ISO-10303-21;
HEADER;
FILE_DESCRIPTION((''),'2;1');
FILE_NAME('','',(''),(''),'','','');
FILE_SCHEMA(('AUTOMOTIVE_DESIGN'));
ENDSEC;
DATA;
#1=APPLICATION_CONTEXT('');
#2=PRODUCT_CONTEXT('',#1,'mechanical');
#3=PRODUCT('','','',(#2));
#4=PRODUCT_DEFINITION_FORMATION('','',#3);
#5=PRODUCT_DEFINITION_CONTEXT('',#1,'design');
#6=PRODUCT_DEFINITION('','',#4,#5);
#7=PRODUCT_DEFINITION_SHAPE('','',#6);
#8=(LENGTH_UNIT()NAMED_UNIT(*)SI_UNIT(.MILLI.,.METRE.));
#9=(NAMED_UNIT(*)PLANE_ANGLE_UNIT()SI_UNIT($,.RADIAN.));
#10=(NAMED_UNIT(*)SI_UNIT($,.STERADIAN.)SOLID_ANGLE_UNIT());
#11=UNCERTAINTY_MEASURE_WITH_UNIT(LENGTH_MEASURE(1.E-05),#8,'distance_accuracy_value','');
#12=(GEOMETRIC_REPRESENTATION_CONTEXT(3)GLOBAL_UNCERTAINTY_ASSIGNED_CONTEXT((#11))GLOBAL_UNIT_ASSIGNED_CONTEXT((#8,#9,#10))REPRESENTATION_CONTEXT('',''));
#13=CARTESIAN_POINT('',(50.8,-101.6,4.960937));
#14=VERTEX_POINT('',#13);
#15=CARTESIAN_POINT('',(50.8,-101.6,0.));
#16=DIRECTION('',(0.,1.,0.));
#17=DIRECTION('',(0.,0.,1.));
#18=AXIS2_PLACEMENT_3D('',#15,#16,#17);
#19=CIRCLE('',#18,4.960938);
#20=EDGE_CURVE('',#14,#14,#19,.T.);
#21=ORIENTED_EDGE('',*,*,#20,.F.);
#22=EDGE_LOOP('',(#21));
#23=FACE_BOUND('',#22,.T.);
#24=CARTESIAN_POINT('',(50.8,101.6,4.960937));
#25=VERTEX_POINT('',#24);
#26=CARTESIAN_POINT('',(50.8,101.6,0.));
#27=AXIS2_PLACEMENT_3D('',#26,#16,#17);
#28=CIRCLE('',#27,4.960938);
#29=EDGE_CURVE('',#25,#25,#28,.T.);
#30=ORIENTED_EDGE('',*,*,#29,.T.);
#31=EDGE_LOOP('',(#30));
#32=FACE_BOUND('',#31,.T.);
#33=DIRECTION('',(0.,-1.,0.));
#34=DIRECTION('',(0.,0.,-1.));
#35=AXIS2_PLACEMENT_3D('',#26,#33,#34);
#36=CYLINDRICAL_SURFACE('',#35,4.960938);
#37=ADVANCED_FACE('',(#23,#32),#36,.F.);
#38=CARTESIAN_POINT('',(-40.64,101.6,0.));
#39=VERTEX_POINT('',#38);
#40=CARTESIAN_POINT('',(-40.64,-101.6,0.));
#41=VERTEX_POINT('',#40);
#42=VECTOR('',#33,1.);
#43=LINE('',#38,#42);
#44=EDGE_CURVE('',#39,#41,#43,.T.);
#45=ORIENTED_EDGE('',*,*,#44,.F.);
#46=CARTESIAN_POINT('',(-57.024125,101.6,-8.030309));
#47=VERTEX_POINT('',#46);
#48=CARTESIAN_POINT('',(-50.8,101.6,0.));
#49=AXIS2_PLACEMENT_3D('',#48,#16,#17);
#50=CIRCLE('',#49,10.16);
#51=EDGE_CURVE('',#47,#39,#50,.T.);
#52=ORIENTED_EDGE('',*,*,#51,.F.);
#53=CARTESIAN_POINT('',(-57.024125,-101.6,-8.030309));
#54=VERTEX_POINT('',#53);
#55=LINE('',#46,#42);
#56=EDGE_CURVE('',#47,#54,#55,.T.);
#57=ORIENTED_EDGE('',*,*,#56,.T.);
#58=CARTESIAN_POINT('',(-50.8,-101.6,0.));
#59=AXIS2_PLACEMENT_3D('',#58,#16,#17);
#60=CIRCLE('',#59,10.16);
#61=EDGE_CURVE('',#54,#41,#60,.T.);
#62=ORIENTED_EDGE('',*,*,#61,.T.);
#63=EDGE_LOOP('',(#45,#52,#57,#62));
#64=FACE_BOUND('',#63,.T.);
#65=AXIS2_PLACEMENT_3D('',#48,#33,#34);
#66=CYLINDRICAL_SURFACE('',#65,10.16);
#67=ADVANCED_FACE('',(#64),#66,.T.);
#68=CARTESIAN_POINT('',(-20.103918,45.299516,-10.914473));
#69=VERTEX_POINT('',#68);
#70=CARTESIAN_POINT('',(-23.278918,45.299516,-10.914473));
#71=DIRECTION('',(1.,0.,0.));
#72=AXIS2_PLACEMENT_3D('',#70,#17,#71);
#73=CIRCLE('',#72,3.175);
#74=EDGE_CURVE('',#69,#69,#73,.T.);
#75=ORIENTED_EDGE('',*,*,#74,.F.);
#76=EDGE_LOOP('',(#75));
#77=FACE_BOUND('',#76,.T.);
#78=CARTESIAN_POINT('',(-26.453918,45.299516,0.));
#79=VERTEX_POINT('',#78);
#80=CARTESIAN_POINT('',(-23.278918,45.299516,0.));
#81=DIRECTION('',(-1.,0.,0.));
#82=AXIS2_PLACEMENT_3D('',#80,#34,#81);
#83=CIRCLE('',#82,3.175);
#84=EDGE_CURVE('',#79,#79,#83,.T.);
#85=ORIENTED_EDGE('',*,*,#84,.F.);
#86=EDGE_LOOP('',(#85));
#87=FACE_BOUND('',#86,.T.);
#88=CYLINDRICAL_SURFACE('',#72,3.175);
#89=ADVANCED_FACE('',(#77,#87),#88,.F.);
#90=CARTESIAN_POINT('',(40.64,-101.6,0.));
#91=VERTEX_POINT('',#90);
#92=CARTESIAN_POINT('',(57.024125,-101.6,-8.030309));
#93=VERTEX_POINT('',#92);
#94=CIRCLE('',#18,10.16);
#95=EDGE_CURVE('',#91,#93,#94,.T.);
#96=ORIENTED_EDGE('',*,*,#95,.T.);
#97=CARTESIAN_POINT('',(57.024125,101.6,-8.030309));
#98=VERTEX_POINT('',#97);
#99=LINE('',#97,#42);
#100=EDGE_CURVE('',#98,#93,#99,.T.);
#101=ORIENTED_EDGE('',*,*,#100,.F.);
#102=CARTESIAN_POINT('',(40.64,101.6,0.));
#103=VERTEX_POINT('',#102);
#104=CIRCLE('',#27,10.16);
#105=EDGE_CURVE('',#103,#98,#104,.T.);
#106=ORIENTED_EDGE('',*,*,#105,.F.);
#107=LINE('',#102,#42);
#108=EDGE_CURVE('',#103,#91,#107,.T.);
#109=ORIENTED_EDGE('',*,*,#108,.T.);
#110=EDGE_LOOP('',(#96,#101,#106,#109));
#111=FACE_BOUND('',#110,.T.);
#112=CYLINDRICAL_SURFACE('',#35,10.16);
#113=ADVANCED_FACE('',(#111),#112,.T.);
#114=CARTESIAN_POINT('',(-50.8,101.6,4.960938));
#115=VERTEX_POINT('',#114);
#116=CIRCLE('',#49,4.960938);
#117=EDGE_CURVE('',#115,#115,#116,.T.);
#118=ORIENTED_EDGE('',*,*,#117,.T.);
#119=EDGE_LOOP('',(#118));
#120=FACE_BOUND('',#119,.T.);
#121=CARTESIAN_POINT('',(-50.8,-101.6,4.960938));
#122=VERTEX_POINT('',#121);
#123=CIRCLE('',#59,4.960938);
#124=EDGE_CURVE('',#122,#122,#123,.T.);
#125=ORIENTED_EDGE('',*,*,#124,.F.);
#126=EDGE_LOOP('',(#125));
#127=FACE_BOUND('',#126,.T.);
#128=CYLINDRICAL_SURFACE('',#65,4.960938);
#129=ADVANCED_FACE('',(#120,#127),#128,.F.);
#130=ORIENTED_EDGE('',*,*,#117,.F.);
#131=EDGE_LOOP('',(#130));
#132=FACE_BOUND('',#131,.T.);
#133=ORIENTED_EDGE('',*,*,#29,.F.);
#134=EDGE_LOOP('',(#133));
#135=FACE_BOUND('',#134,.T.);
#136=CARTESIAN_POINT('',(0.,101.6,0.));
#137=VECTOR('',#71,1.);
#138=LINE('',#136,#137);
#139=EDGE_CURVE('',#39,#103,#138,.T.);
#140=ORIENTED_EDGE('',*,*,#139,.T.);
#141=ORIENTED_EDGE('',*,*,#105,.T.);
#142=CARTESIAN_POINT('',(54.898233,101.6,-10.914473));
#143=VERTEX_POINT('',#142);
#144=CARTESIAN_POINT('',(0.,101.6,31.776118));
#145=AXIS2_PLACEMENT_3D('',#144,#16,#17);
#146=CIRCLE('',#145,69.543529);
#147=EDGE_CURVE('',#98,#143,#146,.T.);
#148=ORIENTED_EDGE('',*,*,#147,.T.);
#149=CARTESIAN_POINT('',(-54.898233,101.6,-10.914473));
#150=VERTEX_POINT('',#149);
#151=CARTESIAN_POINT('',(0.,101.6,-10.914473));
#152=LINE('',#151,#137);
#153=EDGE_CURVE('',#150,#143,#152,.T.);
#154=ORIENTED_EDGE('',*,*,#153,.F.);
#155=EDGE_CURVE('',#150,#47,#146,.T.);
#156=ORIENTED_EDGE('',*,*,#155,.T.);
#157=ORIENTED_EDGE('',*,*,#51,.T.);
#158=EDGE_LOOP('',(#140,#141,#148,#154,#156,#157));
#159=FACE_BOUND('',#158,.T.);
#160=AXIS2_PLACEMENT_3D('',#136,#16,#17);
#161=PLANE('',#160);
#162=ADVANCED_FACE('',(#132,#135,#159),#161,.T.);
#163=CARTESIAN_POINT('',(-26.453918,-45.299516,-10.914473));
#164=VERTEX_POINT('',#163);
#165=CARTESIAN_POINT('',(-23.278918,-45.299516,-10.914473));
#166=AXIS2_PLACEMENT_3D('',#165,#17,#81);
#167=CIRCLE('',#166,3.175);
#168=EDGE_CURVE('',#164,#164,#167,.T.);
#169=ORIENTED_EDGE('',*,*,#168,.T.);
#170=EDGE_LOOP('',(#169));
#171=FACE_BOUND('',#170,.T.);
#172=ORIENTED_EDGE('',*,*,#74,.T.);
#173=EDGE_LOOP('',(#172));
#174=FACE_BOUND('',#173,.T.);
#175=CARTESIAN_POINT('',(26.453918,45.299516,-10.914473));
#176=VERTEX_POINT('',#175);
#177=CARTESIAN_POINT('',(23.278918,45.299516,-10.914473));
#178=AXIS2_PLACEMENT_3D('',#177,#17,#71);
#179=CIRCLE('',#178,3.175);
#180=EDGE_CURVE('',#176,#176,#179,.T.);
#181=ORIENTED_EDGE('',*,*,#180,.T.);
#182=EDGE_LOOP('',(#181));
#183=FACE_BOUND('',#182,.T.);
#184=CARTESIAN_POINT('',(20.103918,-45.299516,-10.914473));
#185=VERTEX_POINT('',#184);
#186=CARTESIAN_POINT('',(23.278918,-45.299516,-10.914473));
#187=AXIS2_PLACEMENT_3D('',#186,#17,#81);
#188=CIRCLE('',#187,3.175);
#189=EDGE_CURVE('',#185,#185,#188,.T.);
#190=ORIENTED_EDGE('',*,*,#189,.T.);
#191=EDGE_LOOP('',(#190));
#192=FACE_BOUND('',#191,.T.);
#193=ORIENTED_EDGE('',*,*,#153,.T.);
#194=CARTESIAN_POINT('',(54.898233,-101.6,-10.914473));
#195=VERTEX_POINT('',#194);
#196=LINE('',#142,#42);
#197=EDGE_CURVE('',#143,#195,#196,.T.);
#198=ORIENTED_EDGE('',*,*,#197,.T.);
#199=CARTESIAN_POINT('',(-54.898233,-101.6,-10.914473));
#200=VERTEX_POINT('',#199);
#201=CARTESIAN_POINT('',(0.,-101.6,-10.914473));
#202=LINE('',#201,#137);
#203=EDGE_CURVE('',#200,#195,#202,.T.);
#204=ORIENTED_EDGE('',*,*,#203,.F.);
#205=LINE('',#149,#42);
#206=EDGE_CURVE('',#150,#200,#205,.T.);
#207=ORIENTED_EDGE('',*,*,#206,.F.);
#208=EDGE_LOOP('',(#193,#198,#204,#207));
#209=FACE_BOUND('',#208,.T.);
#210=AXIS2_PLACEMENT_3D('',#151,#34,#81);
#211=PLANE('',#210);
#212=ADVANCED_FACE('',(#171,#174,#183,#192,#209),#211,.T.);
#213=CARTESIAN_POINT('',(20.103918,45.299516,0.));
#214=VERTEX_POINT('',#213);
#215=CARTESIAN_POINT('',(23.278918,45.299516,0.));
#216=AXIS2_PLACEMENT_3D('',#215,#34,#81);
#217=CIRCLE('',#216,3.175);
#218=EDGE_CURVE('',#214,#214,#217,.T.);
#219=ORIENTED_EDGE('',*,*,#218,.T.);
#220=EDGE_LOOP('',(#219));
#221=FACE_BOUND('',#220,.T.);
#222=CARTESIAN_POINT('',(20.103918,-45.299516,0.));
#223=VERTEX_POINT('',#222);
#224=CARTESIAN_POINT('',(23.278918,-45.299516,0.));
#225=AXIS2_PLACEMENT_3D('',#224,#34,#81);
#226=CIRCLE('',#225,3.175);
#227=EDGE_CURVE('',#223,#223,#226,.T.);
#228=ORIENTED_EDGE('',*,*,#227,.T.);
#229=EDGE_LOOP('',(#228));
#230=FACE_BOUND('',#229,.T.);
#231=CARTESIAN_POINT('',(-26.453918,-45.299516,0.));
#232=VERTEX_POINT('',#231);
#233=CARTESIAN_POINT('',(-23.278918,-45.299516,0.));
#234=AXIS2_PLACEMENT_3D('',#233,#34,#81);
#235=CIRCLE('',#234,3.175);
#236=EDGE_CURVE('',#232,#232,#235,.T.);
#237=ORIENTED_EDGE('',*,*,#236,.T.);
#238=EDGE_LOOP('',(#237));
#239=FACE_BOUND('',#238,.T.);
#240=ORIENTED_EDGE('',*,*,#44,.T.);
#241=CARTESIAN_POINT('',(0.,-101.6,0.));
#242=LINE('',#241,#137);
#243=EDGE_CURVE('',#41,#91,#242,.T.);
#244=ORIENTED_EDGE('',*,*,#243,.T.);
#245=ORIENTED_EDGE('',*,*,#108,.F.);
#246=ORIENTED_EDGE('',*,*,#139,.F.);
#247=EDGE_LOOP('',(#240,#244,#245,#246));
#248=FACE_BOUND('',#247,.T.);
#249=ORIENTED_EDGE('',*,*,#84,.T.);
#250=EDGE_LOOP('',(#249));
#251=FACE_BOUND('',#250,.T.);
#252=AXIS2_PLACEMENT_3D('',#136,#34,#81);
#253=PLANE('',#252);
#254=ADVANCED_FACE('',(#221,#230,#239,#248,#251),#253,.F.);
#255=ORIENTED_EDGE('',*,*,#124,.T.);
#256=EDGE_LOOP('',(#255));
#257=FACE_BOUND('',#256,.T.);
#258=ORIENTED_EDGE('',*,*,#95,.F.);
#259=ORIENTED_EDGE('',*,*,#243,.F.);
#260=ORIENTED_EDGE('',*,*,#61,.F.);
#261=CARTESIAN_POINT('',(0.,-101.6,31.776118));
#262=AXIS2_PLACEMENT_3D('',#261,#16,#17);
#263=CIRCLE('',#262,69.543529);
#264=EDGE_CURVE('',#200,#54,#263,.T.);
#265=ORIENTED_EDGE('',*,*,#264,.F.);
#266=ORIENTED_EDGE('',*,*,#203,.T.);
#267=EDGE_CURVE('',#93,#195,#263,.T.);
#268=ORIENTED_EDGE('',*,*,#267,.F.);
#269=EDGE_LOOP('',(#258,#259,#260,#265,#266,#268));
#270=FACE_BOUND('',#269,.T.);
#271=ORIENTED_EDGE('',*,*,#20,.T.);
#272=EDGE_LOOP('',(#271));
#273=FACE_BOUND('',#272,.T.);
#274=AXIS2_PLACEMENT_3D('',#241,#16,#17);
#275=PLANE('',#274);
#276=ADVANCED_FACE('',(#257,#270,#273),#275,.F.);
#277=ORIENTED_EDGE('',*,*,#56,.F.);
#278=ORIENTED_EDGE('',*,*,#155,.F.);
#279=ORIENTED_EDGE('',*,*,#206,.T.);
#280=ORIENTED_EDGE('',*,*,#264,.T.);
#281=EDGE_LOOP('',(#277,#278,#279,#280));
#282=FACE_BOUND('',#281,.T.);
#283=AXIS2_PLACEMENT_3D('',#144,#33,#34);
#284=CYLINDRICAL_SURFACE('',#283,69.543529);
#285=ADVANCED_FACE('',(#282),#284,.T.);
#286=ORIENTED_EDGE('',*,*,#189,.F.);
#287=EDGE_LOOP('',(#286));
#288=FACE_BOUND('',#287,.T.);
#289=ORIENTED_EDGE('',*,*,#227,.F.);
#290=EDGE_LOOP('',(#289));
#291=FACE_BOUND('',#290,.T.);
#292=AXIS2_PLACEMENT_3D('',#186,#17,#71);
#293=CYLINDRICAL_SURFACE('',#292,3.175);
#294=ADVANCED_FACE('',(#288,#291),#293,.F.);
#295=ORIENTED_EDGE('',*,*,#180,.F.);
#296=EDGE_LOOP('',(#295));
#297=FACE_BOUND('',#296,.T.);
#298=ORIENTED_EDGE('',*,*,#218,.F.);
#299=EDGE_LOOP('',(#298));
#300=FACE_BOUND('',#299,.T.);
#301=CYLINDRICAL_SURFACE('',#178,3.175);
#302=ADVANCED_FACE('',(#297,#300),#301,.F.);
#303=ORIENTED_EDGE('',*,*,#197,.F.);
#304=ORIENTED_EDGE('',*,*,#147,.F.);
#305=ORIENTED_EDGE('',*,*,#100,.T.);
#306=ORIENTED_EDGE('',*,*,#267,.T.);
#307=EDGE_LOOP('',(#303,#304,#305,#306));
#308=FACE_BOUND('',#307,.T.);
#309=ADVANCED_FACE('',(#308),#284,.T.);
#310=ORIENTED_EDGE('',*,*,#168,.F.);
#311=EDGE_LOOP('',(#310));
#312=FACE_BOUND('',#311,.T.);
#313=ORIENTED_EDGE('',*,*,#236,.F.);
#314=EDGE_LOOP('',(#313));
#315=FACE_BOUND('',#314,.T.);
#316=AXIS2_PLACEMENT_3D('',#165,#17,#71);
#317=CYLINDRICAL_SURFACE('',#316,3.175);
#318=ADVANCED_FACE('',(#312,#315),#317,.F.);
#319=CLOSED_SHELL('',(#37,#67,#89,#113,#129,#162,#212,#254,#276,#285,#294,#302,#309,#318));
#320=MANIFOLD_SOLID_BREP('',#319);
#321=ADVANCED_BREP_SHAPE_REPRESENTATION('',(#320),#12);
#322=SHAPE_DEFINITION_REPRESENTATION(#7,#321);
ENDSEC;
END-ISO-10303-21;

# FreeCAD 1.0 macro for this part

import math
import FreeCAD as App
import Part
import Sketcher
Q = App.Units.Quantity

doc = App.newDocument("Part")
body = doc.addObject("PartDesign::Body", "Body")

# Sketch on XZ plane
sketch1 = doc.addObject("Sketcher::SketchObject", "Sketch")
body.addObject(sketch1)
sketch1.AttachmentSupport = (doc.XZ_Plane, [""])
sketch1.MapMode = "FlatFace"
sketch1.addGeometry([
    Part.ArcOfCircle(Part.Circle(App.Vector(0, 31.8, 0), App.Vector(0, 0, 1), 69.5), math.radians(-145.08), math.radians(-142.13)),  # 0
    Part.ArcOfCircle(Part.Circle(App.Vector(-50.8, 0, 0), App.Vector(0, 0, 1), 10.2), math.radians(0), math.radians(232)),  # 1
    Part.LineSegment(App.Vector(-40.6, 0, 0), App.Vector(40.6, 0, 0)),  # 2
    Part.ArcOfCircle(Part.Circle(App.Vector(50.8, 0, 0), App.Vector(0, 0, 1), 10.2), math.radians(-52), math.radians(180)),  # 3
    Part.ArcOfCircle(Part.Circle(App.Vector(0, 31.8, 0), App.Vector(0, 0, 1), 69.5), math.radians(-37.87), math.radians(-34.92)),  # 4
    Part.LineSegment(App.Vector(54.9, -10.9, 0), App.Vector(-54.9, -10.9, 0)),  # 5
    Part.Circle(App.Vector(-50.8, 0, 0), App.Vector(0, 0, 1), 5),  # 6
    Part.Circle(App.Vector(50.8, 0, 0), App.Vector(0, 0, 1), 5),  # 7
], False)
sketch1.addConstraint([
    Sketcher.Constraint("Coincident", 0, 1, 1, 2),
    Sketcher.Constraint("Coincident", 1, 1, 2, 1),
    Sketcher.Constraint("Coincident", 2, 2, 3, 2),
    Sketcher.Constraint("Coincident", 3, 1, 4, 2),
    Sketcher.Constraint("Coincident", 4, 1, 5, 1),
    Sketcher.Constraint("Coincident", 5, 2, 0, 2),
    Sketcher.Constraint("Horizontal", 2),
    Sketcher.Constraint("Horizontal", 5),
    Sketcher.Constraint("Coincident", 4, 3, 0, 3),
    Sketcher.Constraint("Coincident", 6, 3, 1, 3),
    Sketcher.Constraint("Coincident", 7, 3, 3, 3),
    Sketcher.Constraint("Equal", 1, 3),
    Sketcher.Constraint("Equal", 0, 4),
    Sketcher.Constraint("Equal", 6, 7),
    Sketcher.Constraint("Symmetric", 1, 3, 3, 3, -1, 1),
    Sketcher.Constraint("Symmetric", 0, 1, 3, 1, -2),
    Sketcher.Constraint("PointOnObject", 1, 1, -1),
    Sketcher.Constraint("Radius", 1, Q("0.4 in")),
    Sketcher.Constraint("Diameter", 6, Q("0.390625 in")),
    Sketcher.Constraint("DistanceX", 2, 1, 2, 2, Q("3.2 in")),
    Sketcher.Constraint("Radius", 0, Q("69.54353 mm")),
    Sketcher.Constraint("DistanceX", 5, 2, 5, 1, Q("109.796466 mm")),
    Sketcher.Constraint("DistanceY", 0, 1, -1, 1, Q("8.030309 mm")),
])
pad1 = doc.addObject("PartDesign::Pad", "Pad")
body.addObject(pad1)
pad1.Profile = sketch1
pad1.Length = Q("8 in")
pad1.Midplane = True

# Sketch on XY plane
sketch2 = doc.addObject("Sketcher::SketchObject", "Sketch001")
body.addObject(sketch2)
sketch2.AttachmentSupport = (doc.XY_Plane, [""])
sketch2.MapMode = "FlatFace"
sketch2.addGeometry([
    Part.Circle(App.Vector(-23.3, 45.3, 0), App.Vector(0, 0, 1), 3.2),
    Part.Circle(App.Vector(23.3, 45.3, 0), App.Vector(0, 0, 1), 3.2),
    Part.Circle(App.Vector(23.3, -45.3, 0), App.Vector(0, 0, 1), 3.2),
    Part.Circle(App.Vector(-23.3, -45.3, 0), App.Vector(0, 0, 1), 3.2),
], False)
sketch2.addConstraint([
    Sketcher.Constraint("Equal", 0, 1),
    Sketcher.Constraint("Equal", 1, 2),
    Sketcher.Constraint("Equal", 2, 3),
    Sketcher.Constraint("Symmetric", 0, 3, 2, 3, -1, 1),
    Sketcher.Constraint("Symmetric", 1, 3, 3, 3, -1, 1),
    Sketcher.Constraint("Symmetric", 0, 3, 1, 3, -2),
    Sketcher.Constraint("Diameter", 0, Q("0.25 in")),
    Sketcher.Constraint("DistanceY", 2, 3, 1, 3, Q("90.599032 mm")),
    Sketcher.Constraint("DistanceX", 0, 3, -1, 1, Q("23.278918 mm")),
])
pocket1 = doc.addObject("PartDesign::Pocket", "Pocket")
body.addObject(pocket1)
pocket1.Profile = sketch2
pocket1.Type = "ThroughAll"
pocket1.Midplane = True

doc.recompute()
